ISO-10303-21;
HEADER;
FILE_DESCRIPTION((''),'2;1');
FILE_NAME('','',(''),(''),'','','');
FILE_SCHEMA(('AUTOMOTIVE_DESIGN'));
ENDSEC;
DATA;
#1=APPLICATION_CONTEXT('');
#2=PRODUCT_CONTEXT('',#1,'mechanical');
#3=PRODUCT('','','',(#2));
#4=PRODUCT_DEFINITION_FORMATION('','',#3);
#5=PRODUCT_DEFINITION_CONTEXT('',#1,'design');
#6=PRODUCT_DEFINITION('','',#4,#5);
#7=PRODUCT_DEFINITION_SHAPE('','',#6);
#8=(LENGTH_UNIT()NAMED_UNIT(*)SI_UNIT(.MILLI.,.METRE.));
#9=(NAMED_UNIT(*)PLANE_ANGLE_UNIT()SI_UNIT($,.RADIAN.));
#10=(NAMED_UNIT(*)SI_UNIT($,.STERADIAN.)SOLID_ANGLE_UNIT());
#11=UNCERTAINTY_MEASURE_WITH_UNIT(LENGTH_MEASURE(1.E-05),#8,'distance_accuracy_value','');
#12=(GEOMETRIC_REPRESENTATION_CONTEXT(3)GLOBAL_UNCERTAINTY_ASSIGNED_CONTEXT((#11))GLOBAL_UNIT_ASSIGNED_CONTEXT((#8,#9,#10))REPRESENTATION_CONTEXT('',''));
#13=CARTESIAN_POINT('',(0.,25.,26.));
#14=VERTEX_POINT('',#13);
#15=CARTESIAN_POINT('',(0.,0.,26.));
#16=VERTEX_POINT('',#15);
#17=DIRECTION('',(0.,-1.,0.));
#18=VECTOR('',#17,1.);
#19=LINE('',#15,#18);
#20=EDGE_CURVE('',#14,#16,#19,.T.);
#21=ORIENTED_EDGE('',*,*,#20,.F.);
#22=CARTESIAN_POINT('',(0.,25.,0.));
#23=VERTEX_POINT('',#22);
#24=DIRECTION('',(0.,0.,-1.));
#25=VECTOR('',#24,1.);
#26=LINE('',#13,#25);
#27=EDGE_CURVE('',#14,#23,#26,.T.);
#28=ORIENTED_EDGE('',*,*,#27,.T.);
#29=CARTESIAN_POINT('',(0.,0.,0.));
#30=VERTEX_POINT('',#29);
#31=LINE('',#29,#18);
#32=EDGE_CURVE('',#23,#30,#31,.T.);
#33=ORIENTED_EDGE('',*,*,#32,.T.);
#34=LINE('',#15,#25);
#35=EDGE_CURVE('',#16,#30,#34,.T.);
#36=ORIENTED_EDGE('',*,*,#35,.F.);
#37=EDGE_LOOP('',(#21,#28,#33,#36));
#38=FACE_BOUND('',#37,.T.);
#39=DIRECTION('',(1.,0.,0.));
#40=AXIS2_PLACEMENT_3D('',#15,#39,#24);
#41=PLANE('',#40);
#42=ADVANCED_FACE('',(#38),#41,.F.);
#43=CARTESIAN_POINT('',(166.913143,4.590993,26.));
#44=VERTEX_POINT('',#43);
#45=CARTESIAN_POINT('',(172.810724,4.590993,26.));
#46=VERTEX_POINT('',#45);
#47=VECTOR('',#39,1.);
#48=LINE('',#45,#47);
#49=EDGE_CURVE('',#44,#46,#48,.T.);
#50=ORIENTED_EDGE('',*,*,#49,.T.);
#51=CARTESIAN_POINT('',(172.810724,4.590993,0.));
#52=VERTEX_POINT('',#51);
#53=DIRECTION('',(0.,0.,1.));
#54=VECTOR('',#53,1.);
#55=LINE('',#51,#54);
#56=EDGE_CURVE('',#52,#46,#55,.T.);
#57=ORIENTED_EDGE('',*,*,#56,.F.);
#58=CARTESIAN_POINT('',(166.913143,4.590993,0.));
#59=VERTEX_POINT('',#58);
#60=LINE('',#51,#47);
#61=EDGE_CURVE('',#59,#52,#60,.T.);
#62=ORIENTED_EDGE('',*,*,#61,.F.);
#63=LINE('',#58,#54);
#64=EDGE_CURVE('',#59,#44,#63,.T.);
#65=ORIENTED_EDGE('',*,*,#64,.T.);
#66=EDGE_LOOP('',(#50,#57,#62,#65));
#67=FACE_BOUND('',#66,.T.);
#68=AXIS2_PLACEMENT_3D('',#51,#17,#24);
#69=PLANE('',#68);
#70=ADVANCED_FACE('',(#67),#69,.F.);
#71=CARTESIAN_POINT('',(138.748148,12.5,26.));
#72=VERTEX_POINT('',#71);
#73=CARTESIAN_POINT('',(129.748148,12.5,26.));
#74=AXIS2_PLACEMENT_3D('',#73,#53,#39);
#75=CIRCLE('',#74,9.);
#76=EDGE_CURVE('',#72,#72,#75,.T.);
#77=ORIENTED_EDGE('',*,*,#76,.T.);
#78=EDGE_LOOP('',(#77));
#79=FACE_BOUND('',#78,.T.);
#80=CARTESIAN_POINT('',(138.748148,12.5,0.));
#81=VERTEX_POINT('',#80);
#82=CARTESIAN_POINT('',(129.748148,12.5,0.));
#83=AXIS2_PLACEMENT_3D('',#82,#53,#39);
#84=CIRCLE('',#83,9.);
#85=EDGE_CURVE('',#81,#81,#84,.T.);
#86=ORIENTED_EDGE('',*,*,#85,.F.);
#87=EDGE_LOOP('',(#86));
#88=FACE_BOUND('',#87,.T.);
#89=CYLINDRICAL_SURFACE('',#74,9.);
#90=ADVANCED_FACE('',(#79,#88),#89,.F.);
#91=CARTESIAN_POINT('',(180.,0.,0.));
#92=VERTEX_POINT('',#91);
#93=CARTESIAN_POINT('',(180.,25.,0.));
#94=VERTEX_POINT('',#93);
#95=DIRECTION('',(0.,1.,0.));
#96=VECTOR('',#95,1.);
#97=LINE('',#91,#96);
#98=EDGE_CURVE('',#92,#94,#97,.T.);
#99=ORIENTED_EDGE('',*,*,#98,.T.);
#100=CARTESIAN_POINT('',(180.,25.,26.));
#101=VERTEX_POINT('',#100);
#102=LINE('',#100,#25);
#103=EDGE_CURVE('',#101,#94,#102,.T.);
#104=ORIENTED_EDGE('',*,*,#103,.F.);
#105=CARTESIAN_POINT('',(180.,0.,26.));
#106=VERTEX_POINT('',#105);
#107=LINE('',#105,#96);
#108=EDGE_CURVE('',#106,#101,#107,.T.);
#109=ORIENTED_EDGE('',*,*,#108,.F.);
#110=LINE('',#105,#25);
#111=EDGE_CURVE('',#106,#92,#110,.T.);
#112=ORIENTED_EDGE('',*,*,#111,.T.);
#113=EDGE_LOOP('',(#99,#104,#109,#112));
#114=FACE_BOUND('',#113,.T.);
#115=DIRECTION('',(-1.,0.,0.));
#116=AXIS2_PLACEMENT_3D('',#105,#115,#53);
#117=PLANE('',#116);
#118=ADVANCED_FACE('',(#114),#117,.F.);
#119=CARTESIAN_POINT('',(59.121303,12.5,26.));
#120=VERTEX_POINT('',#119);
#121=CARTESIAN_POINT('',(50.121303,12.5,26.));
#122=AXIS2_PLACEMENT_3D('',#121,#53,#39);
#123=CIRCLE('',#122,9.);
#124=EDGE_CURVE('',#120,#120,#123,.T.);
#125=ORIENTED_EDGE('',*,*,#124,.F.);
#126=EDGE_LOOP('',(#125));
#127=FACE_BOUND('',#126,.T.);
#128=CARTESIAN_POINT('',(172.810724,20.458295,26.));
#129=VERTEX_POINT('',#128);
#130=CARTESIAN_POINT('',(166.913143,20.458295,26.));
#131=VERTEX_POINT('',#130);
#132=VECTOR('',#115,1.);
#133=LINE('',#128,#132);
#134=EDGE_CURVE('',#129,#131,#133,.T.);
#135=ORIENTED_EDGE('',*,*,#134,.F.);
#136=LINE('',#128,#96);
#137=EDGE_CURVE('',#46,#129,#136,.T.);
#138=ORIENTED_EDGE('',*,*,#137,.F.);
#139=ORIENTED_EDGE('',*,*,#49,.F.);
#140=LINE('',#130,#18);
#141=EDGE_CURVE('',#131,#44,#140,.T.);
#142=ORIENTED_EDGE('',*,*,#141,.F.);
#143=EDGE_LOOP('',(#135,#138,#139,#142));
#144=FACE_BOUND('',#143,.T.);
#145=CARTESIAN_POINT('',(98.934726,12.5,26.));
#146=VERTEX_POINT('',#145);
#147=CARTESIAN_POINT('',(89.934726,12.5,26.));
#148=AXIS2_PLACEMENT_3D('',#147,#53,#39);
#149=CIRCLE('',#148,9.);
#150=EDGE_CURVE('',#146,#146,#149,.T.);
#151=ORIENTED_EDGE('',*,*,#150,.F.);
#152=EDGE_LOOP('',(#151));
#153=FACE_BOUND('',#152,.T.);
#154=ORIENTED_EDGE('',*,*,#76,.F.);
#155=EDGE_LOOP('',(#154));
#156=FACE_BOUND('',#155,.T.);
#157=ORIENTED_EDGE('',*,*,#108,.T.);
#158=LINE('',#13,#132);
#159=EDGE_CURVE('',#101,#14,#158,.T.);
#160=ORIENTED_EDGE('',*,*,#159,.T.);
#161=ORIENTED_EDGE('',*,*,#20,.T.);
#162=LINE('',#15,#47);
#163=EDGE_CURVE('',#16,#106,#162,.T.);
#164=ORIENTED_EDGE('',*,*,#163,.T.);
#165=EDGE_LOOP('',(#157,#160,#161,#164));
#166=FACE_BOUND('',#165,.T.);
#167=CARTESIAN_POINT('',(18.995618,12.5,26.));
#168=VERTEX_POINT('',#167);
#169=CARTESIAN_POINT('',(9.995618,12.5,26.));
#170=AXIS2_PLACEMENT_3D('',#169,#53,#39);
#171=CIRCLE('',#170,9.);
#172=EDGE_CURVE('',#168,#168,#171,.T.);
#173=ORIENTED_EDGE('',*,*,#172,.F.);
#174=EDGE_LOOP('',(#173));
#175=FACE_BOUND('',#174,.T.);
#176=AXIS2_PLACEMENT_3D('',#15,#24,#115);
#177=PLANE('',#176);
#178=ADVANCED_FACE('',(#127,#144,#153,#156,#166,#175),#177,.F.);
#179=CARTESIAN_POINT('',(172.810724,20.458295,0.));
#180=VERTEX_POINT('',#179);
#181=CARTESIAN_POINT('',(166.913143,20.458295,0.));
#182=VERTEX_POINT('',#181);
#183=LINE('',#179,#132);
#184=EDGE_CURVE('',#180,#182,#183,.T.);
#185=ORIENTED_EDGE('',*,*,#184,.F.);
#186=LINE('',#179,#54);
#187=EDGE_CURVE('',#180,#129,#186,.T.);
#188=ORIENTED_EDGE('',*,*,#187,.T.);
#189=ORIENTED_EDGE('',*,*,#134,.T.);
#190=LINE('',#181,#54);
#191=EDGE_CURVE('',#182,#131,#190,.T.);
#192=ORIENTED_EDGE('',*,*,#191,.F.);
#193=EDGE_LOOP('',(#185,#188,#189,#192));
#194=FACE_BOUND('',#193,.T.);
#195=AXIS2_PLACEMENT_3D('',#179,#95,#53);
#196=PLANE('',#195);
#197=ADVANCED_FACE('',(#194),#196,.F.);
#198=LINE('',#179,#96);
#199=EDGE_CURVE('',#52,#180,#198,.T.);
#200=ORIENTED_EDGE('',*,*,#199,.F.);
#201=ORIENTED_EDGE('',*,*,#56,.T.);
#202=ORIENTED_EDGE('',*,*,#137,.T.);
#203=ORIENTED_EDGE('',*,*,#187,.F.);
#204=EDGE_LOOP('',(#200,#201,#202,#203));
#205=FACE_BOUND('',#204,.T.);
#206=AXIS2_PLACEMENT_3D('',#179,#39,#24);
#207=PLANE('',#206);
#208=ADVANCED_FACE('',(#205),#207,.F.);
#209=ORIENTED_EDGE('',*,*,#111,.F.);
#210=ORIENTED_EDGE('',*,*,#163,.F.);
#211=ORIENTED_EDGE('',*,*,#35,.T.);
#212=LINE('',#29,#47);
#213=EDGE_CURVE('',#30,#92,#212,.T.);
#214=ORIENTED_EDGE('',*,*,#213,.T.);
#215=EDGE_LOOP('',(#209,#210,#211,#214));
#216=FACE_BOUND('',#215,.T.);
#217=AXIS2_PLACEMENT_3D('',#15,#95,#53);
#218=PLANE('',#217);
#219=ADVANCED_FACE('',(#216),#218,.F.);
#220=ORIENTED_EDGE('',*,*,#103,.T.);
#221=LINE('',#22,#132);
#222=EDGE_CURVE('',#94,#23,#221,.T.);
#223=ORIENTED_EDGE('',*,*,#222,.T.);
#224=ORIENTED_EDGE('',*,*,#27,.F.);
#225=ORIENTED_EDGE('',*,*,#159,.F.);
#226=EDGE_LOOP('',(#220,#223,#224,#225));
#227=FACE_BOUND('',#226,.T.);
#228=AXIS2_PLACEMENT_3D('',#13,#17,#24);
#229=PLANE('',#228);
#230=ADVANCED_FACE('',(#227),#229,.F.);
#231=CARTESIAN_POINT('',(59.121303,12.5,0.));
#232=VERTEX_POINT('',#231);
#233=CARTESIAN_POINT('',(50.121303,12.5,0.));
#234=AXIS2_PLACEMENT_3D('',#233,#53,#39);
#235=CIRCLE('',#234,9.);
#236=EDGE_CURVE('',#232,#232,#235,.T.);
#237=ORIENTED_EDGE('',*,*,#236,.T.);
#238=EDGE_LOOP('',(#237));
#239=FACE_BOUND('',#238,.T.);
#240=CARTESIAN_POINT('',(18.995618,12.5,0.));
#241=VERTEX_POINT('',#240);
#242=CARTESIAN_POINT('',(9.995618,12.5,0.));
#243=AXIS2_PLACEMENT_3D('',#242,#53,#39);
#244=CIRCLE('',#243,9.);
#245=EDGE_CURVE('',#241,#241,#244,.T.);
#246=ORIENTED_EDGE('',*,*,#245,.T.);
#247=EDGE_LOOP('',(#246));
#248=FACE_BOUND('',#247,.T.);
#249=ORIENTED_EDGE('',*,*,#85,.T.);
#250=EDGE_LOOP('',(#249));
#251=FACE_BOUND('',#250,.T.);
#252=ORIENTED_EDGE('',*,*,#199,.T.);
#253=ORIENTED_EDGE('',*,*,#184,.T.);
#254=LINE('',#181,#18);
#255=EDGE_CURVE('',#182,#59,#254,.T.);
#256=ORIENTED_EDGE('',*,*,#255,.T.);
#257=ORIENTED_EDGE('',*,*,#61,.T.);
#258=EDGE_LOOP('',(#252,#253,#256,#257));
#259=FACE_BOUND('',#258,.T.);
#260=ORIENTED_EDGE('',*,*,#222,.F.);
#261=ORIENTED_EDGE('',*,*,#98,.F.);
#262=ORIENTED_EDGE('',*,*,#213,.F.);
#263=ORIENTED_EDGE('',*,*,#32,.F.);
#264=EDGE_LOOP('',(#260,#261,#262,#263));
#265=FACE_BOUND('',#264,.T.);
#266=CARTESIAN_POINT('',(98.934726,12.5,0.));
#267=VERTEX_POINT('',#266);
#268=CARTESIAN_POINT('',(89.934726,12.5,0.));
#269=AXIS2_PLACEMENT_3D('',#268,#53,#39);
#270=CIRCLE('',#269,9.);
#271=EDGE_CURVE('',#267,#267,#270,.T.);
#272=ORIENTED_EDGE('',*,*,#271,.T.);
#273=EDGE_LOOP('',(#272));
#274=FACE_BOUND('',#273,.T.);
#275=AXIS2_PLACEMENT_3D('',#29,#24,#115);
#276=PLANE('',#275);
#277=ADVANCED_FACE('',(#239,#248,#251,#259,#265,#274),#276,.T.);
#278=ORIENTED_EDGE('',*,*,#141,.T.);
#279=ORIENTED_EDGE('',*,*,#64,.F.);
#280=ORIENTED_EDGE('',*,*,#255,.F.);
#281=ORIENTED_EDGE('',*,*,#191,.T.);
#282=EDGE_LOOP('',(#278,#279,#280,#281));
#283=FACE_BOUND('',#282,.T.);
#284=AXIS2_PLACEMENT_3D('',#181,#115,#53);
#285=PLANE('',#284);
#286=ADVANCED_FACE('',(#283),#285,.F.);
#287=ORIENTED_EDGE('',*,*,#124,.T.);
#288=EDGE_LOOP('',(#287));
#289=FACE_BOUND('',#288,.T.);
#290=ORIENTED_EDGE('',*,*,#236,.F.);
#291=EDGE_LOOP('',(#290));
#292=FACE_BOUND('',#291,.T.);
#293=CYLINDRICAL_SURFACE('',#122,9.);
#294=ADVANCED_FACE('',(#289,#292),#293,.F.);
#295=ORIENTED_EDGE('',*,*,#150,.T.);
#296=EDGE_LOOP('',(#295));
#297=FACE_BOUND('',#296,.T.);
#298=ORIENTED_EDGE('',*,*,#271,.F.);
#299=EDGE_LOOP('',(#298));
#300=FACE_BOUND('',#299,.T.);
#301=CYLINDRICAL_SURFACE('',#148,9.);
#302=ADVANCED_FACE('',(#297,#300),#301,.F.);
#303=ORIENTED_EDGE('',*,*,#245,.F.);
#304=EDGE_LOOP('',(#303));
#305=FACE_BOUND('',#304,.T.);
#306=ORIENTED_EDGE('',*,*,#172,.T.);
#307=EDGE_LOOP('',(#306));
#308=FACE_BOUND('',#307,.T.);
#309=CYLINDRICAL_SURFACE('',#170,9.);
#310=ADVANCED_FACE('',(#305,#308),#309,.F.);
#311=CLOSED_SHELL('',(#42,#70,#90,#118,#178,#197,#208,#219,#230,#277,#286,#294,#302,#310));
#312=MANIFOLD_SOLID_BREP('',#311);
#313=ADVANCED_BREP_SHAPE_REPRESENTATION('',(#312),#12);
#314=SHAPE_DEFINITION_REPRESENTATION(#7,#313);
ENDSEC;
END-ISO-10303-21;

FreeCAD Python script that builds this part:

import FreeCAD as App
import Part
import Sketcher
Q = App.Units.Quantity

doc = App.newDocument("Part")
body = doc.addObject("PartDesign::Body", "Body")

sketch1 = body.newObject("Sketcher::SketchObject", "Sketch")
sketch1.AttachmentSupport = (doc.getObject("XY_Plane"), [""])
sketch1.MapMode = "FlatFace"
sketch1.addGeometry([
    Part.LineSegment(App.Vector(0, 25, 0), App.Vector(0, 0, 0)),
    Part.LineSegment(App.Vector(0, 0, 0), App.Vector(180, 0, 0)),
    Part.LineSegment(App.Vector(180, 0, 0), App.Vector(180, 25, 0)),
    Part.LineSegment(App.Vector(180, 25, 0), App.Vector(0, 25, 0)),
], False)
sketch1.addConstraint([
    Sketcher.Constraint("Coincident", 0, 2, 1, 1),
    Sketcher.Constraint("Coincident", 1, 2, 2, 1),
    Sketcher.Constraint("Coincident", 2, 2, 3, 1),
    Sketcher.Constraint("Coincident", 3, 2, 0, 1),
    Sketcher.Constraint("Vertical", 0),
    Sketcher.Constraint("Horizontal", 1),
    Sketcher.Constraint("Vertical", 2),
    Sketcher.Constraint("Horizontal", 3),
    Sketcher.Constraint("Coincident", 0, 2, -1, 1),
    Sketcher.Constraint("DistanceX", 1, 1, 1, 2, Q("180 mm")),
    Sketcher.Constraint("DistanceY", 0, 2, 0, 1, Q("25 mm")),
])
pad1 = body.newObject("PartDesign::Pad", "Pad")
pad1.Profile = sketch1
pad1.Length = 26

sketch2 = body.newObject("Sketcher::SketchObject", "Sketch001")
sketch2.AttachmentSupport = (doc.getObject("XY_Plane"), [""])
sketch2.MapMode = "FlatFace"
sketch2.AttachmentOffset = App.Placement(App.Vector(0, 0, 26), App.Rotation())
sketch2.addGeometry([
    Part.Circle(App.Vector(10, 12, 0), App.Vector(0, 0, 1), 9),
    Part.Circle(App.Vector(50, 12, 0), App.Vector(0, 0, 1), 9),
    Part.Circle(App.Vector(90, 12, 0), App.Vector(0, 0, 1), 9),
    Part.Circle(App.Vector(130, 12, 0), App.Vector(0, 0, 1), 9),
], False)
sketch2.addConstraint([
    Sketcher.Constraint("Equal", 0, 1),
    Sketcher.Constraint("Equal", 1, 2),
    Sketcher.Constraint("Equal", 2, 3),
    Sketcher.Constraint("Horizontal", 0, 3, 1, 3),
    Sketcher.Constraint("Horizontal", 1, 3, 2, 3),
    Sketcher.Constraint("Horizontal", 2, 3, 3, 3),
    Sketcher.Constraint("Diameter", 0, Q("18 mm")),
    Sketcher.Constraint("DistanceY", -1, 1, 0, 3, Q("12.5 mm")),
    Sketcher.Constraint("DistanceX", -1, 1, 0, 3, Q("9.995618 mm")),
    Sketcher.Constraint("DistanceX", -1, 1, 3, 3, Q("129.748148 mm")),
    Sketcher.Constraint("DistanceX", -1, 1, 1, 3, Q("50.121303 mm")),
    Sketcher.Constraint("DistanceX", -1, 1, 2, 3, Q("89.934726 mm")),
])
doc.recompute()
hole = body.newObject("PartDesign::Hole", "Hole")
hole.Profile = sketch2
hole.ThreadType = "None"
hole.Diameter = 18
hole.DepthType = "ThroughAll"

sketch3 = body.newObject("Sketcher::SketchObject", "Sketch002")
sketch3.AttachmentSupport = (doc.getObject("XY_Plane"), [""])
sketch3.MapMode = "FlatFace"
sketch3.AttachmentOffset = App.Placement(App.Vector(0, 0, 26), App.Rotation())
sketch3.addGeometry([
    Part.LineSegment(App.Vector(167, 20, 0), App.Vector(167, 5, 0)),
    Part.LineSegment(App.Vector(167, 5, 0), App.Vector(173, 5, 0)),
    Part.LineSegment(App.Vector(173, 5, 0), App.Vector(173, 20, 0)),
    Part.LineSegment(App.Vector(173, 20, 0), App.Vector(167, 20, 0)),
], False)
sketch3.addConstraint([
    Sketcher.Constraint("Coincident", 0, 2, 1, 1),
    Sketcher.Constraint("Coincident", 1, 2, 2, 1),
    Sketcher.Constraint("Coincident", 2, 2, 3, 1),
    Sketcher.Constraint("Coincident", 3, 2, 0, 1),
    Sketcher.Constraint("Vertical", 0),
    Sketcher.Constraint("Horizontal", 1),
    Sketcher.Constraint("Vertical", 2),
    Sketcher.Constraint("Horizontal", 3),
    Sketcher.Constraint("DistanceY", 0, 2, 0, 1, Q("15.867302 mm")),
    Sketcher.Constraint("DistanceX", 1, 1, 1, 2, Q("5.897581 mm")),
    Sketcher.Constraint("DistanceX", -1, 1, 0, 2, Q("166.913143 mm")),
    Sketcher.Constraint("DistanceY", -1, 1, 0, 2, Q("4.590993 mm")),
])
pocket1 = body.newObject("PartDesign::Pocket", "Pocket")
pocket1.Profile = sketch3
pocket1.Type = "ThroughAll"

doc.recompute()
